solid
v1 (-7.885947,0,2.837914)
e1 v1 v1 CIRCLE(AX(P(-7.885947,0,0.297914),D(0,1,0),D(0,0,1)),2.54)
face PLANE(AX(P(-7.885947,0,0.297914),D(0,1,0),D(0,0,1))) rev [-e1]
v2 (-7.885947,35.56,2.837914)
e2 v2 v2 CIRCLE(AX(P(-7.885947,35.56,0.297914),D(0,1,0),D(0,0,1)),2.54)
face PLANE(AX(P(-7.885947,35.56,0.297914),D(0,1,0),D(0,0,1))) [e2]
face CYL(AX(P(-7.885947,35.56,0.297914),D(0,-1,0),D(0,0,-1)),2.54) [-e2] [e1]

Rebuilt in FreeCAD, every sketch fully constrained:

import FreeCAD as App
import Part
import Sketcher
from FreeCAD import Vector
Q = App.Units.Quantity

doc = App.newDocument("Part")
body = doc.addObject("PartDesign::Body", "Body")

sketch1 = doc.addObject("Sketcher::SketchObject", "Sketch")
body.addObject(sketch1)
sketch1.AttachmentSupport = (doc.XZ_Plane, [""])
sketch1.MapMode = "FlatFace"
sketch1.addGeometry(Part.Circle(Vector(-7.885947, 0.297914, 0), Vector(0, 0, 1), 2.54), False)
sketch1.addConstraint([
    Sketcher.Constraint("Diameter", 0, Q("0.2 in")),
    Sketcher.Constraint("DistanceX", 0, 3, -1, 1, 7.885947),
    Sketcher.Constraint("DistanceY", -1, 1, 0, 3, 0.297914),
])
pad1 = doc.addObject("PartDesign::Pad", "Pad")
body.addObject(pad1)
pad1.Profile = sketch1
pad1.Length = Q("1.4 in")
pad1.Reversed = True

doc.recompute()
